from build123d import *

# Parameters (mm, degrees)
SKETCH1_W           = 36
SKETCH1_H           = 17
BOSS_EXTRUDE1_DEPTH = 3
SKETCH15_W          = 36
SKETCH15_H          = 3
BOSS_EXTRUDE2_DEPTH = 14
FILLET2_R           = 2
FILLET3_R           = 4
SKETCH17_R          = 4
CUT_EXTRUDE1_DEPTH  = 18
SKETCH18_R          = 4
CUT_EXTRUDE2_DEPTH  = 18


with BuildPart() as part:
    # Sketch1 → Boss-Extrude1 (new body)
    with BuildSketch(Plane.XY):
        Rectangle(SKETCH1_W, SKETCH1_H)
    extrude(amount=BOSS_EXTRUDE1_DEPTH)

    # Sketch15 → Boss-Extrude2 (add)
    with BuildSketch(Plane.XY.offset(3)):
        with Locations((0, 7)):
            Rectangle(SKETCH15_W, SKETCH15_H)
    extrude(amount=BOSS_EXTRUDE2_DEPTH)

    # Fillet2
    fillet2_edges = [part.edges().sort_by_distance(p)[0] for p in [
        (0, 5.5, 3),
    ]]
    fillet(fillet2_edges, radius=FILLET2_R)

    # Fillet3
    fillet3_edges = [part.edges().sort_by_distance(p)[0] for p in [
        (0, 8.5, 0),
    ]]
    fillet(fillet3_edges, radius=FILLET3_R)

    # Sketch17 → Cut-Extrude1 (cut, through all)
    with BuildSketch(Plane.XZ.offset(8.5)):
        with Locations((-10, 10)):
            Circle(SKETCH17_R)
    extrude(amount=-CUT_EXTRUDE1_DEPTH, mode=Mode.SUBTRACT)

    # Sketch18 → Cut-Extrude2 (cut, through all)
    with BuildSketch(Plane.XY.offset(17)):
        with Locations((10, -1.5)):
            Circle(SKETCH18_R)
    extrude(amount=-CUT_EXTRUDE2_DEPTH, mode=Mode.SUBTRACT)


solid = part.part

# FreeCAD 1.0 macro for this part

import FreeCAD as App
import Part
import Sketcher


def edges_at(feature, points):
    """Names of the edges that pass closest to the given points."""
    edges = feature.Shape.Edges
    near = lambda p: min(range(len(edges)), key=lambda i: edges[i].distToShape(Part.Vertex(*p))[0])
    return sorted({f"Edge{near(p) + 1}" for p in points})

doc = App.newDocument("Part")
body = doc.addObject("PartDesign::Body", "Body")

# Sketch on XY plane
sketch1 = doc.addObject("Sketcher::SketchObject", "Sketch")
body.addObject(sketch1)
sketch1.AttachmentSupport = (doc.XY_Plane, [""])
sketch1.MapMode = "FlatFace"
sketch1.addGeometry([
    Part.LineSegment(App.Vector(-18, 8, 0), App.Vector(-18, -8, 0)),
    Part.LineSegment(App.Vector(-18, -8, 0), App.Vector(18, -8, 0)),
    Part.LineSegment(App.Vector(18, -8, 0), App.Vector(18, 8, 0)),
    Part.LineSegment(App.Vector(18, 8, 0), App.Vector(-18, 8, 0)),
], False)
sketch1.addConstraint([
    Sketcher.Constraint("Coincident", 0, 2, 1, 1),
    Sketcher.Constraint("Coincident", 1, 2, 2, 1),
    Sketcher.Constraint("Coincident", 2, 2, 3, 1),
    Sketcher.Constraint("Coincident", 3, 2, 0, 1),
    Sketcher.Constraint("Vertical", 0),
    Sketcher.Constraint("Horizontal", 1),
    Sketcher.Constraint("Vertical", 2),
    Sketcher.Constraint("Horizontal", 3),
    Sketcher.Constraint("Symmetric", 0, 2, 2, 2, -1, 1),
    Sketcher.Constraint("DistanceX", 1, 1, 1, 2, 36.0),
    Sketcher.Constraint("DistanceY", 0, 2, 0, 1, 17.0),
])
pad1 = doc.addObject("PartDesign::Pad", "Pad")
body.addObject(pad1)
pad1.Profile = sketch1
pad1.Length = 3

# Sketch on XY plane
sketch2 = doc.addObject("Sketcher::SketchObject", "Sketch001")
body.addObject(sketch2)
sketch2.AttachmentSupport = (doc.XY_Plane, [""])
sketch2.MapMode = "FlatFace"
sketch2.AttachmentOffset = App.Placement(App.Vector(0, 0, 3), App.Rotation())
sketch2.addGeometry([
    Part.LineSegment(App.Vector(-18, 8.5, 0), App.Vector(-18, 5.5, 0)),
    Part.LineSegment(App.Vector(-18, 5.5, 0), App.Vector(18, 5.5, 0)),
    Part.LineSegment(App.Vector(18, 5.5, 0), App.Vector(18, 8.5, 0)),
    Part.LineSegment(App.Vector(18, 8.5, 0), App.Vector(-18, 8.5, 0)),
], False)
sketch2.addConstraint([
    Sketcher.Constraint("Coincident", 0, 2, 1, 1),
    Sketcher.Constraint("Coincident", 1, 2, 2, 1),
    Sketcher.Constraint("Coincident", 2, 2, 3, 1),
    Sketcher.Constraint("Coincident", 3, 2, 0, 1),
    Sketcher.Constraint("Vertical", 0),
    Sketcher.Constraint("Horizontal", 1),
    Sketcher.Constraint("Vertical", 2),
    Sketcher.Constraint("Horizontal", 3),
    Sketcher.Constraint("DistanceX", 1, 1, 1, 2, 36.0),
    Sketcher.Constraint("DistanceY", 0, 2, 0, 1, 3.0),
    Sketcher.Constraint("DistanceX", 0, 2, -1, 1, 18.0),
    Sketcher.Constraint("DistanceY", -1, 1, 0, 2, 5.5),
])
pad2 = doc.addObject("PartDesign::Pad", "Pad001")
body.addObject(pad2)
pad2.Profile = sketch2
pad2.Length = 14
doc.recompute()

fillet = doc.addObject("PartDesign::Fillet", "Fillet")
body.addObject(fillet)
fillet.Base = (pad2, edges_at(pad2, [(0, 5.5, 3)]))
fillet.Radius = 2
doc.recompute()

fillet2 = doc.addObject("PartDesign::Fillet", "Fillet001")
body.addObject(fillet2)
fillet2.Base = (fillet, edges_at(fillet, [(0, 8.5, 0)]))
fillet2.Radius = 4

# Sketch on XZ plane
sketch3 = doc.addObject("Sketcher::SketchObject", "Sketch002")
body.addObject(sketch3)
sketch3.AttachmentSupport = (doc.XZ_Plane, [""])
sketch3.MapMode = "FlatFace"
sketch3.AttachmentOffset = App.Placement(App.Vector(0, 0, 8.5), App.Rotation())
sketch3.addGeometry(Part.Circle(App.Vector(-10, 10, 0), App.Vector(0, 0, 1), 4), False)
sketch3.addConstraint([
    Sketcher.Constraint("Diameter", 0, 8.0),
    Sketcher.Constraint("DistanceX", 0, 3, -1, 1, 10.0),
    Sketcher.Constraint("DistanceY", -1, 1, 0, 3, 10.0),
])
pocket1 = doc.addObject("PartDesign::Pocket", "Pocket")
body.addObject(pocket1)
pocket1.Profile = sketch3
pocket1.Type = "ThroughAll"

# Sketch on XY plane
sketch4 = doc.addObject("Sketcher::SketchObject", "Sketch003")
body.addObject(sketch4)
sketch4.AttachmentSupport = (doc.XY_Plane, [""])
sketch4.MapMode = "FlatFace"
sketch4.AttachmentOffset = App.Placement(App.Vector(0, 0, 17), App.Rotation())
sketch4.addGeometry(Part.Circle(App.Vector(10, -1.5, 0), App.Vector(0, 0, 1), 4), False)
sketch4.addConstraint([
    Sketcher.Constraint("Diameter", 0, 8.0),
    Sketcher.Constraint("DistanceX", -1, 1, 0, 3, 10.0),
    Sketcher.Constraint("DistanceY", 0, 3, -1, 1, 1.5),
])
pocket2 = doc.addObject("PartDesign::Pocket", "Pocket001")
body.addObject(pocket2)
pocket2.Profile = sketch4
pocket2.Type = "ThroughAll"

doc.recompute()
